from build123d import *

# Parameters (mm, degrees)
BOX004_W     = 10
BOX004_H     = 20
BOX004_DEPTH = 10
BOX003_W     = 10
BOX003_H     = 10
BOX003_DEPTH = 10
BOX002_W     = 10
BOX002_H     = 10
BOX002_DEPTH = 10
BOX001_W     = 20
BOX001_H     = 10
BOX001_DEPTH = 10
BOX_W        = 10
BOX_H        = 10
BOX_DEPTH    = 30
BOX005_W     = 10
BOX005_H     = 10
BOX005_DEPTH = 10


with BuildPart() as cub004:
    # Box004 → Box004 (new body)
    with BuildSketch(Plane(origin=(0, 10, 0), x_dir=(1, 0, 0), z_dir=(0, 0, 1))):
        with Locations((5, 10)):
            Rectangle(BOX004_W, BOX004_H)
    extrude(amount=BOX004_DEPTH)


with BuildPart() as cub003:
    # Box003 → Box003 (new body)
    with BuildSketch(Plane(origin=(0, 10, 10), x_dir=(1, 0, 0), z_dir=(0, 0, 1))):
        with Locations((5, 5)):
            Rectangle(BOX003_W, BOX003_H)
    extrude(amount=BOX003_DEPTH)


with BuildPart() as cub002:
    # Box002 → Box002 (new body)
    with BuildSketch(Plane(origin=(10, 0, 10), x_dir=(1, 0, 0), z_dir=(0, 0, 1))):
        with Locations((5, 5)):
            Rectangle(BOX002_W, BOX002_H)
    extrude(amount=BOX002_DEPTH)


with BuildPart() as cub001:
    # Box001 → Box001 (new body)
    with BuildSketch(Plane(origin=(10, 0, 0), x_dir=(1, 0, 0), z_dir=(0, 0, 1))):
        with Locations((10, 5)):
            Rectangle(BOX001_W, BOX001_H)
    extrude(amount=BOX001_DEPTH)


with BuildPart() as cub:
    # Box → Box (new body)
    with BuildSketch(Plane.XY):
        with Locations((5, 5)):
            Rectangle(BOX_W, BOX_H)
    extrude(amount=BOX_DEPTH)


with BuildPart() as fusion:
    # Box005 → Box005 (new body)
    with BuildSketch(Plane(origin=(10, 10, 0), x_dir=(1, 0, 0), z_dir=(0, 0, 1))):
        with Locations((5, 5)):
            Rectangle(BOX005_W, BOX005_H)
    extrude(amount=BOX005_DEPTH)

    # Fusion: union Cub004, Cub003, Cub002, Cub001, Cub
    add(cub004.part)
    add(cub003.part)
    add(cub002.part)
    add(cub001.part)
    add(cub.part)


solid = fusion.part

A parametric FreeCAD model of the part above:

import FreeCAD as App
import Part
import Sketcher
Q = App.Units.Quantity

doc = App.newDocument("Part")
params = doc.addObject("Spreadsheet::Sheet", "Params")
for row, (alias, value) in enumerate([
    ("sketch1_width", "10 mm"),
    ("sketch1_height", "20 mm"),
    ("pad1_length", "10 mm"),
    ("sketch2_width", "10 mm"),
    ("pad2_length", "10 mm"),
    ("sketch3_width", "10 mm"),
    ("pad3_length", "10 mm"),
    ("sketch4_width", "20 mm"),
    ("sketch4_height", "10 mm"),
    ("pad4_length", "10 mm"),
    ("sketch5_width", "10 mm"),
    ("pad5_length", "30 mm"),
    ("sketch6_width", "10 mm"),
    ("pad6_length", "10 mm"),
], start=1):
    params.set(f"A{row}", alias)
    params.set(f"B{row}", "=" + value)
    params.setAlias(f"B{row}", alias)

body = doc.addObject("PartDesign::Body", "Body")

# Sketch on XY plane
sketch1 = body.newObject("Sketcher::SketchObject", "Sketch")
sketch1.AttachmentSupport = (doc.getObject("XY_Plane"), [""])
sketch1.MapMode = "FlatFace"
sketch1.addGeometry(Part.LineSegment(App.Vector(0, 30, 0), App.Vector(0, 10, 0)), False)
sketch1.addGeometry(Part.LineSegment(App.Vector(0, 10, 0), App.Vector(10, 10, 0)), False)
sketch1.addGeometry(Part.LineSegment(App.Vector(10, 10, 0), App.Vector(10, 30, 0)), False)
sketch1.addGeometry(Part.LineSegment(App.Vector(10, 30, 0), App.Vector(0, 30, 0)), False)
sketch1.addConstraint(Sketcher.Constraint("Coincident", 0, 2, 1, 1))
sketch1.addConstraint(Sketcher.Constraint("Coincident", 1, 2, 2, 1))
sketch1.addConstraint(Sketcher.Constraint("Coincident", 2, 2, 3, 1))
sketch1.addConstraint(Sketcher.Constraint("Coincident", 3, 2, 0, 1))
sketch1.addConstraint(Sketcher.Constraint("Vertical", 0))
sketch1.addConstraint(Sketcher.Constraint("Horizontal", 1))
sketch1.addConstraint(Sketcher.Constraint("Vertical", 2))
sketch1.addConstraint(Sketcher.Constraint("Horizontal", 3))
sketch1.addConstraint(Sketcher.Constraint("PointOnObject", 0, 2, -2))
sketch1.addConstraint(Sketcher.Constraint("DistanceX", 1, 1, 1, 2, Q("10 mm")))
sketch1.addConstraint(Sketcher.Constraint("DistanceY", 0, 2, 0, 1, Q("20 mm")))
sketch1.addConstraint(Sketcher.Constraint("DistanceY", -1, 1, 0, 2, Q("10 mm")))
sketch1.setExpression("Constraints[9]", "Params.sketch1_width")
sketch1.setExpression("Constraints[10]", "Params.sketch1_height")
pad1 = body.newObject("PartDesign::Pad", "Pad")
pad1.Profile = sketch1
pad1.setExpression("Length", "Params.pad1_length")
body2 = doc.addObject("PartDesign::Body", "Body001")

# Sketch on XY plane
sketch2 = body2.newObject("Sketcher::SketchObject", "Sketch001")
sketch2.AttachmentSupport = (doc.getObject("XY_Plane001"), [""])
sketch2.MapMode = "FlatFace"
sketch2.AttachmentOffset = App.Placement(App.Vector(0, 0, 10), App.Rotation())
sketch2.addGeometry(Part.LineSegment(App.Vector(0, 20, 0), App.Vector(0, 10, 0)), False)
sketch2.addGeometry(Part.LineSegment(App.Vector(0, 10, 0), App.Vector(10, 10, 0)), False)
sketch2.addGeometry(Part.LineSegment(App.Vector(10, 10, 0), App.Vector(10, 20, 0)), False)
sketch2.addGeometry(Part.LineSegment(App.Vector(10, 20, 0), App.Vector(0, 20, 0)), False)
sketch2.addConstraint(Sketcher.Constraint("Coincident", 0, 2, 1, 1))
sketch2.addConstraint(Sketcher.Constraint("Coincident", 1, 2, 2, 1))
sketch2.addConstraint(Sketcher.Constraint("Coincident", 2, 2, 3, 1))
sketch2.addConstraint(Sketcher.Constraint("Coincident", 3, 2, 0, 1))
sketch2.addConstraint(Sketcher.Constraint("Vertical", 0))
sketch2.addConstraint(Sketcher.Constraint("Horizontal", 1))
sketch2.addConstraint(Sketcher.Constraint("Vertical", 2))
sketch2.addConstraint(Sketcher.Constraint("Horizontal", 3))
sketch2.addConstraint(Sketcher.Constraint("PointOnObject", 0, 2, -2))
sketch2.addConstraint(Sketcher.Constraint("Equal", 3, 0))
sketch2.addConstraint(Sketcher.Constraint("DistanceX", 1, 1, 1, 2, Q("10 mm")))
sketch2.addConstraint(Sketcher.Constraint("DistanceY", -1, 1, 0, 2, Q("10 mm")))
sketch2.setExpression("Constraints[10]", "Params.sketch2_width")
pad2 = body2.newObject("PartDesign::Pad", "Pad001")
pad2.Profile = sketch2
pad2.setExpression("Length", "Params.pad2_length")
body3 = doc.addObject("PartDesign::Body", "Body002")

# Sketch on XY plane
sketch3 = body3.newObject("Sketcher::SketchObject", "Sketch002")
sketch3.AttachmentSupport = (doc.getObject("XY_Plane002"), [""])
sketch3.MapMode = "FlatFace"
sketch3.AttachmentOffset = App.Placement(App.Vector(0, 0, 10), App.Rotation())
sketch3.addGeometry(Part.LineSegment(App.Vector(10, 10, 0), App.Vector(10, 0, 0)), False)
sketch3.addGeometry(Part.LineSegment(App.Vector(10, 0, 0), App.Vector(20, 0, 0)), False)
sketch3.addGeometry(Part.LineSegment(App.Vector(20, 0, 0), App.Vector(20, 10, 0)), False)
sketch3.addGeometry(Part.LineSegment(App.Vector(20, 10, 0), App.Vector(10, 10, 0)), False)
sketch3.addConstraint(Sketcher.Constraint("Coincident", 0, 2, 1, 1))
sketch3.addConstraint(Sketcher.Constraint("Coincident", 1, 2, 2, 1))
sketch3.addConstraint(Sketcher.Constraint("Coincident", 2, 2, 3, 1))
sketch3.addConstraint(Sketcher.Constraint("Coincident", 3, 2, 0, 1))
sketch3.addConstraint(Sketcher.Constraint("Vertical", 0))
sketch3.addConstraint(Sketcher.Constraint("Horizontal", 1))
sketch3.addConstraint(Sketcher.Constraint("Vertical", 2))
sketch3.addConstraint(Sketcher.Constraint("Horizontal", 3))
sketch3.addConstraint(Sketcher.Constraint("PointOnObject", 0, 2, -1))
sketch3.addConstraint(Sketcher.Constraint("Equal", 3, 0))
sketch3.addConstraint(Sketcher.Constraint("DistanceX", 1, 1, 1, 2, Q("10 mm")))
sketch3.addConstraint(Sketcher.Constraint("DistanceX", -1, 1, 0, 2, Q("10 mm")))
sketch3.setExpression("Constraints[10]", "Params.sketch3_width")
pad3 = body3.newObject("PartDesign::Pad", "Pad002")
pad3.Profile = sketch3
pad3.setExpression("Length", "Params.pad3_length")
body4 = doc.addObject("PartDesign::Body", "Body003")

# Sketch on XY plane
sketch4 = body4.newObject("Sketcher::SketchObject", "Sketch003")
sketch4.AttachmentSupport = (doc.getObject("XY_Plane003"), [""])
sketch4.MapMode = "FlatFace"
sketch4.addGeometry(Part.LineSegment(App.Vector(10, 10, 0), App.Vector(10, 0, 0)), False)
sketch4.addGeometry(Part.LineSegment(App.Vector(10, 0, 0), App.Vector(30, 0, 0)), False)
sketch4.addGeometry(Part.LineSegment(App.Vector(30, 0, 0), App.Vector(30, 10, 0)), False)
sketch4.addGeometry(Part.LineSegment(App.Vector(30, 10, 0), App.Vector(10, 10, 0)), False)
sketch4.addConstraint(Sketcher.Constraint("Coincident", 0, 2, 1, 1))
sketch4.addConstraint(Sketcher.Constraint("Coincident", 1, 2, 2, 1))
sketch4.addConstraint(Sketcher.Constraint("Coincident", 2, 2, 3, 1))
sketch4.addConstraint(Sketcher.Constraint("Coincident", 3, 2, 0, 1))
sketch4.addConstraint(Sketcher.Constraint("Vertical", 0))
sketch4.addConstraint(Sketcher.Constraint("Horizontal", 1))
sketch4.addConstraint(Sketcher.Constraint("Vertical", 2))
sketch4.addConstraint(Sketcher.Constraint("Horizontal", 3))
sketch4.addConstraint(Sketcher.Constraint("PointOnObject", 0, 2, -1))
sketch4.addConstraint(Sketcher.Constraint("DistanceX", 1, 1, 1, 2, Q("20 mm")))
sketch4.addConstraint(Sketcher.Constraint("DistanceY", 0, 2, 0, 1, Q("10 mm")))
sketch4.addConstraint(Sketcher.Constraint("DistanceX", -1, 1, 0, 2, Q("10 mm")))
sketch4.setExpression("Constraints[9]", "Params.sketch4_width")
sketch4.setExpression("Constraints[10]", "Params.sketch4_height")
pad4 = body4.newObject("PartDesign::Pad", "Pad003")
pad4.Profile = sketch4
pad4.setExpression("Length", "Params.pad4_length")
body5 = doc.addObject("PartDesign::Body", "Body004")

# Sketch on XY plane
sketch5 = body5.newObject("Sketcher::SketchObject", "Sketch004")
sketch5.AttachmentSupport = (doc.getObject("XY_Plane004"), [""])
sketch5.MapMode = "FlatFace"
sketch5.addGeometry(Part.LineSegment(App.Vector(0, 10, 0), App.Vector(0, 0, 0)), False)
sketch5.addGeometry(Part.LineSegment(App.Vector(0, 0, 0), App.Vector(10, 0, 0)), False)
sketch5.addGeometry(Part.LineSegment(App.Vector(10, 0, 0), App.Vector(10, 10, 0)), False)
sketch5.addGeometry(Part.LineSegment(App.Vector(10, 10, 0), App.Vector(0, 10, 0)), False)
sketch5.addConstraint(Sketcher.Constraint("Coincident", 0, 2, 1, 1))
sketch5.addConstraint(Sketcher.Constraint("Coincident", 1, 2, 2, 1))
sketch5.addConstraint(Sketcher.Constraint("Coincident", 2, 2, 3, 1))
sketch5.addConstraint(Sketcher.Constraint("Coincident", 3, 2, 0, 1))
sketch5.addConstraint(Sketcher.Constraint("Vertical", 0))
sketch5.addConstraint(Sketcher.Constraint("Horizontal", 1))
sketch5.addConstraint(Sketcher.Constraint("Vertical", 2))
sketch5.addConstraint(Sketcher.Constraint("Horizontal", 3))
sketch5.addConstraint(Sketcher.Constraint("Coincident", 0, 2, -1, 1))
sketch5.addConstraint(Sketcher.Constraint("Equal", 3, 0))
sketch5.addConstraint(Sketcher.Constraint("DistanceX", 1, 1, 1, 2, Q("10 mm")))
sketch5.setExpression("Constraints[10]", "Params.sketch5_width")
pad5 = body5.newObject("PartDesign::Pad", "Pad004")
pad5.Profile = sketch5
pad5.setExpression("Length", "Params.pad5_length")
body6 = doc.addObject("PartDesign::Body", "Body005")
body6.AllowCompound = True

# Sketch on XY plane
sketch6 = body6.newObject("Sketcher::SketchObject", "Sketch005")
sketch6.AttachmentSupport = (doc.getObject("XY_Plane005"), [""])
sketch6.MapMode = "FlatFace"
sketch6.addGeometry(Part.LineSegment(App.Vector(10, 20, 0), App.Vector(10, 10, 0)), False)
sketch6.addGeometry(Part.LineSegment(App.Vector(10, 10, 0), App.Vector(20, 10, 0)), False)
sketch6.addGeometry(Part.LineSegment(App.Vector(20, 10, 0), App.Vector(20, 20, 0)), False)
sketch6.addGeometry(Part.LineSegment(App.Vector(20, 20, 0), App.Vector(10, 20, 0)), False)
sketch6.addConstraint(Sketcher.Constraint("Coincident", 0, 2, 1, 1))
sketch6.addConstraint(Sketcher.Constraint("Coincident", 1, 2, 2, 1))
sketch6.addConstraint(Sketcher.Constraint("Coincident", 2, 2, 3, 1))
sketch6.addConstraint(Sketcher.Constraint("Coincident", 3, 2, 0, 1))
sketch6.addConstraint(Sketcher.Constraint("Vertical", 0))
sketch6.addConstraint(Sketcher.Constraint("Horizontal", 1))
sketch6.addConstraint(Sketcher.Constraint("Vertical", 2))
sketch6.addConstraint(Sketcher.Constraint("Horizontal", 3))
sketch6.addConstraint(Sketcher.Constraint("Equal", 3, 0))
sketch6.addConstraint(Sketcher.Constraint("DistanceX", 1, 1, 1, 2, Q("10 mm")))
sketch6.addConstraint(Sketcher.Constraint("DistanceX", -1, 1, 0, 2, Q("10 mm")))
sketch6.addConstraint(Sketcher.Constraint("DistanceY", -1, 1, 0, 2, Q("10 mm")))
sketch6.setExpression("Constraints[9]", "Params.sketch6_width")
pad6 = body6.newObject("PartDesign::Pad", "Pad005")
pad6.Profile = sketch6
pad6.setExpression("Length", "Params.pad6_length")
doc.recompute()

boolean = body6.newObject("PartDesign::Boolean", "Boolean")
boolean.Type = "Fuse"
boolean.addObjects([body])
doc.recompute()

boolean2 = body6.newObject("PartDesign::Boolean", "Boolean001")
boolean2.Type = "Fuse"
boolean2.addObjects([body2])
doc.recompute()

boolean3 = body6.newObject("PartDesign::Boolean", "Boolean002")
boolean3.Type = "Fuse"
boolean3.addObjects([body3])
doc.recompute()

boolean4 = body6.newObject("PartDesign::Boolean", "Boolean003")
boolean4.Type = "Fuse"
boolean4.addObjects([body4])
doc.recompute()

boolean5 = body6.newObject("PartDesign::Boolean", "Boolean004")
boolean5.Type = "Fuse"
boolean5.addObjects([body5])

doc.recompute()
